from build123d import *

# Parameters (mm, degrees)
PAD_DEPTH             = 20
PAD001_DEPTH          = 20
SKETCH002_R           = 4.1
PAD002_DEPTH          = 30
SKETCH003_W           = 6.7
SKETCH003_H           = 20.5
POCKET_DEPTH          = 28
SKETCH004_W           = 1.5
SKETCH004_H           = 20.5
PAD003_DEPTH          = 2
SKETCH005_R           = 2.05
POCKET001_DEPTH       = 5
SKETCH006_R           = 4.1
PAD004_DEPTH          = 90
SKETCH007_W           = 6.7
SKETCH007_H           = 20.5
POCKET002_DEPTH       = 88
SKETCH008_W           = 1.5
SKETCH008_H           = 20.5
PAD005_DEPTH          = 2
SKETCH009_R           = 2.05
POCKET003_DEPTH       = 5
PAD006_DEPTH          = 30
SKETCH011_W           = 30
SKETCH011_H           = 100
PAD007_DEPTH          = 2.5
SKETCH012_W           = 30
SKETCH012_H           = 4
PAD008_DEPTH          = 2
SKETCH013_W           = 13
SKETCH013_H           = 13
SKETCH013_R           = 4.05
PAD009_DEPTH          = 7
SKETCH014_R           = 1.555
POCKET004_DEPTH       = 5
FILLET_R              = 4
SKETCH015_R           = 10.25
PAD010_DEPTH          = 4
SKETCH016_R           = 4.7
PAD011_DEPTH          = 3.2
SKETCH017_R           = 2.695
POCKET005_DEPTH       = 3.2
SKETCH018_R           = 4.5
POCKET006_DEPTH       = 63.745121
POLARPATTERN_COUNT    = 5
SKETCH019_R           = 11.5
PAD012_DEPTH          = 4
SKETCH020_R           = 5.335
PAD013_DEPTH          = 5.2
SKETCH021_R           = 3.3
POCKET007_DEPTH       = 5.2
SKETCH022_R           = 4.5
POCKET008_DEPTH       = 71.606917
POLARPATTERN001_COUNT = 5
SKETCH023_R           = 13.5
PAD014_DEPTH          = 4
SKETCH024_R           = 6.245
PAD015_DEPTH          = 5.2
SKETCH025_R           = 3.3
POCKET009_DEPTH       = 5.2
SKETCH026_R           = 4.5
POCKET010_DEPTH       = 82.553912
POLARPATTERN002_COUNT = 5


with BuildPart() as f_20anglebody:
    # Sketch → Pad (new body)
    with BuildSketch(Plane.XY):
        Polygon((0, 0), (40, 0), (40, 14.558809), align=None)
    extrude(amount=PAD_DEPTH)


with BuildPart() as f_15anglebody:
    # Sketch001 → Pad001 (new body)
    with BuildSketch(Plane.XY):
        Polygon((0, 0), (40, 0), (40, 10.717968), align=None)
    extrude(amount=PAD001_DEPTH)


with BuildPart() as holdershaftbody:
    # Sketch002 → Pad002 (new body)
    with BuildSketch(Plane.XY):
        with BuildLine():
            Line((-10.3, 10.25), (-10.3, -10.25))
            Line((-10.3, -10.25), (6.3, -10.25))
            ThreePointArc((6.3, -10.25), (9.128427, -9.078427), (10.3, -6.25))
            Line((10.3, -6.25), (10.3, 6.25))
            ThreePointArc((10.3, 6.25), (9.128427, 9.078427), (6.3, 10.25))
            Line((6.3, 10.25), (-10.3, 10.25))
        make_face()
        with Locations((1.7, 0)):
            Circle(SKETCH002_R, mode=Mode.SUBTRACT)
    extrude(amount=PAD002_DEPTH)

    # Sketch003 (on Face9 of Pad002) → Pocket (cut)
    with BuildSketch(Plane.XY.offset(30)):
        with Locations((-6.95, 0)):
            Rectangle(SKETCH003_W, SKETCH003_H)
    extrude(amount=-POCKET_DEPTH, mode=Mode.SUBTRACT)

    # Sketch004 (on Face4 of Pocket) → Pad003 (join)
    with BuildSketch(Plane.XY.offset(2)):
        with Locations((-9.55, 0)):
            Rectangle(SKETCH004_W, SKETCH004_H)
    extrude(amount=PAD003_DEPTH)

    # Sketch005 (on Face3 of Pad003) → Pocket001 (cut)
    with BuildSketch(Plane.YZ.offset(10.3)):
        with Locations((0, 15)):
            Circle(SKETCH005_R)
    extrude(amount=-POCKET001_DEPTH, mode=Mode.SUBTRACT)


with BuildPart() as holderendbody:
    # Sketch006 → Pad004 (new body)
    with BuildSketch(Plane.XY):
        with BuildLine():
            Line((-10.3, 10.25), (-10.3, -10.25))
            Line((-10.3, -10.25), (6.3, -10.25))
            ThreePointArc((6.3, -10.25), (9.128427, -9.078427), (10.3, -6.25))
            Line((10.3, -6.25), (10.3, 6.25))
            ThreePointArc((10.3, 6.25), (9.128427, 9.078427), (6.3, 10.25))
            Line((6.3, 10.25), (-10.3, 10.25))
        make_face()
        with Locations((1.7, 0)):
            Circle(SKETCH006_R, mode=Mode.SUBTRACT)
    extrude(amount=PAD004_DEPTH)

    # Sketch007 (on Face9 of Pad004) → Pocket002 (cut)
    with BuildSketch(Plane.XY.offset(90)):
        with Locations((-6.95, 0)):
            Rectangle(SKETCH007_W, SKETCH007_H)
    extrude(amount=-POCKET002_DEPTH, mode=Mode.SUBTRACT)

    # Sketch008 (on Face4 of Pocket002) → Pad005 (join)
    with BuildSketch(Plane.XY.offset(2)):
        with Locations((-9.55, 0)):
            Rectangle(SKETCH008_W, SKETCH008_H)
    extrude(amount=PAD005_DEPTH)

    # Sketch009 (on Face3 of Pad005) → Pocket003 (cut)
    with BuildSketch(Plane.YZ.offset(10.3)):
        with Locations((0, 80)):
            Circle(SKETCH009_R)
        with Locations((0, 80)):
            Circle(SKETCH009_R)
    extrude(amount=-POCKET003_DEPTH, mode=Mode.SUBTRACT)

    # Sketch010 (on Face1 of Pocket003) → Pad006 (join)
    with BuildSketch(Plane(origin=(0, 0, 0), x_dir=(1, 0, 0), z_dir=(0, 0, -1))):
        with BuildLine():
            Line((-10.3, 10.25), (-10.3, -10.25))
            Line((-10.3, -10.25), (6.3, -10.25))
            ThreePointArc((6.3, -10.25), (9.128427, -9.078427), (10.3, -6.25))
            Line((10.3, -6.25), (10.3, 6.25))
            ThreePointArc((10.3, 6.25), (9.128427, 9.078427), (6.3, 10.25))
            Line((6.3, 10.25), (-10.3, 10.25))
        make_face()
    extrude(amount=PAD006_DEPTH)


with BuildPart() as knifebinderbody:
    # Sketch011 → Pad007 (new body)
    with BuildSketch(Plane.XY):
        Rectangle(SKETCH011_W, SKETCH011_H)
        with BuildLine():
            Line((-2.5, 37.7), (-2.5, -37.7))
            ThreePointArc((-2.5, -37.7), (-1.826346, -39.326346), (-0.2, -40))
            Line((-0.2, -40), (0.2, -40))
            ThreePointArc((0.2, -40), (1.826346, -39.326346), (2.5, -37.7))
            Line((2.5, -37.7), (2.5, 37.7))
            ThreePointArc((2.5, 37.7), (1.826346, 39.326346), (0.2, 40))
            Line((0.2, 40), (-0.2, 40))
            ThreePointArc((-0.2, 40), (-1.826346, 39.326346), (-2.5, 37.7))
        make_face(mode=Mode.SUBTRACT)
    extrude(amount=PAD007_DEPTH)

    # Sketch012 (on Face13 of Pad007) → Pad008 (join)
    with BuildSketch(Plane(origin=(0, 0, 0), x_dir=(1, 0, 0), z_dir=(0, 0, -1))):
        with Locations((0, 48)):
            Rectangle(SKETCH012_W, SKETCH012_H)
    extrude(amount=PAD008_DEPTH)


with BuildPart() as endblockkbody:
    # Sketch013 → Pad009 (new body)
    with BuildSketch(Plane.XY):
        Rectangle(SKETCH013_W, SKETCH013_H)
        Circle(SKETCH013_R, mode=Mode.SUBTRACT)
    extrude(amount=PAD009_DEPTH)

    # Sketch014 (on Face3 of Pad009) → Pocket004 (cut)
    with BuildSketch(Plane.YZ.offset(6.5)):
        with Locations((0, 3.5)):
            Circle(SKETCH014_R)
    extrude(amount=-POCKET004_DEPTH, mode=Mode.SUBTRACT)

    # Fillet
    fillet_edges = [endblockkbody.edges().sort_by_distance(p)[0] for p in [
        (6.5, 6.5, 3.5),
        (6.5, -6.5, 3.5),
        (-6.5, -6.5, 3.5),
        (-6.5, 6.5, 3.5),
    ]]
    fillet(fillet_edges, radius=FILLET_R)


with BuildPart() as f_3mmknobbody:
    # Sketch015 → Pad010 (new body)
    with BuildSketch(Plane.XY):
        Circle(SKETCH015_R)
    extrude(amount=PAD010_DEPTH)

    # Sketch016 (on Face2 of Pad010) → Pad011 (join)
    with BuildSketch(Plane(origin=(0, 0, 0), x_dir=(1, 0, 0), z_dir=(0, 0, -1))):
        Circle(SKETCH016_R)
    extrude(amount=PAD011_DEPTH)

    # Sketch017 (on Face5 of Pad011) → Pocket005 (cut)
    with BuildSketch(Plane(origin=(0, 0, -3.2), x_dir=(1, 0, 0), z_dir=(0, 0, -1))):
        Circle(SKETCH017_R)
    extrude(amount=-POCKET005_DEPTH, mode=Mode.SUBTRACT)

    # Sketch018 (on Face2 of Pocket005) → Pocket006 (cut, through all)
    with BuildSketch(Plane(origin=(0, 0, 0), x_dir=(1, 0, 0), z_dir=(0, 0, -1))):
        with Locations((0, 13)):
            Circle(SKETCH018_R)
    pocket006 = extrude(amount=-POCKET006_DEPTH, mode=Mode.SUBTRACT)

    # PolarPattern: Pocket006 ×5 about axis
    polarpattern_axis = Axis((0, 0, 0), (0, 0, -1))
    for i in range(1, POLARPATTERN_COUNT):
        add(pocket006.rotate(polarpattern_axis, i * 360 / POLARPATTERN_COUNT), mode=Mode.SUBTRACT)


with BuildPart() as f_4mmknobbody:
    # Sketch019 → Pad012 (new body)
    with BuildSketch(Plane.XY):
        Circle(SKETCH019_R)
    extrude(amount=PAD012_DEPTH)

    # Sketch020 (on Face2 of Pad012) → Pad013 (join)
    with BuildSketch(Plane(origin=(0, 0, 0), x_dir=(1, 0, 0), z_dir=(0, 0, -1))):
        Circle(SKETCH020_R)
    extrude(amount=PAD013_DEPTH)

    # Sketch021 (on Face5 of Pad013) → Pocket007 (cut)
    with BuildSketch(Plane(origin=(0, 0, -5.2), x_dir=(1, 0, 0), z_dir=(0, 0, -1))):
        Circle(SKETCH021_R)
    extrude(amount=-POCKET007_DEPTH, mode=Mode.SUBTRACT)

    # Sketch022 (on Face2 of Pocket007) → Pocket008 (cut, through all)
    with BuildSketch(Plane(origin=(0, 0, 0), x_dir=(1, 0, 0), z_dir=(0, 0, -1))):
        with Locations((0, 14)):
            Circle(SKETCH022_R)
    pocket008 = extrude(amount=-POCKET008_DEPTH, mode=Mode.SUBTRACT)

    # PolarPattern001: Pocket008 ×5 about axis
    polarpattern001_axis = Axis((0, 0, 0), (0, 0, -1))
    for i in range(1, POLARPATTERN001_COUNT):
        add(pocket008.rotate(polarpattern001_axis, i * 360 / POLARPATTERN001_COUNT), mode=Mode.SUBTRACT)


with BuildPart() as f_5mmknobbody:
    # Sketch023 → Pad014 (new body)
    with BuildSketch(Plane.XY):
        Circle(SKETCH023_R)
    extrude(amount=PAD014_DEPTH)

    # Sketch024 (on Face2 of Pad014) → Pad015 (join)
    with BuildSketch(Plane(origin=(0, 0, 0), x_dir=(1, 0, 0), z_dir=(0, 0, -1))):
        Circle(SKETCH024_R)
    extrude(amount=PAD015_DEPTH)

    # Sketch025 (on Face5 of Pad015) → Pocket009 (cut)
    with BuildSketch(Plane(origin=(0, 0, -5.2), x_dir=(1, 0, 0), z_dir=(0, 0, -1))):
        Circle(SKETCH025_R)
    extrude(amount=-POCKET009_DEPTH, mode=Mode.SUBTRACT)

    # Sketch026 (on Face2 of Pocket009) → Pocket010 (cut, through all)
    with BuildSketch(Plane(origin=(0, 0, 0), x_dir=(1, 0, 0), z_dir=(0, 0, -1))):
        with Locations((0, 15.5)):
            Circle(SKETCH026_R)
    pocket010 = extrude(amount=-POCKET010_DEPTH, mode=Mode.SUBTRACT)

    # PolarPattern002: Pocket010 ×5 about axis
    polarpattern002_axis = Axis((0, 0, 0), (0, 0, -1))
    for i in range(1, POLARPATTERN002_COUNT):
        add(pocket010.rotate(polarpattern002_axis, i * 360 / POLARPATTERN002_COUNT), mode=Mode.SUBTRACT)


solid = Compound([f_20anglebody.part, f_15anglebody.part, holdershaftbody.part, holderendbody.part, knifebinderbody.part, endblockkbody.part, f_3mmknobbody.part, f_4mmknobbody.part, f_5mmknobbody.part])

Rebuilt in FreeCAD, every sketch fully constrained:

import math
import FreeCAD as App
import Part
import Sketcher

V = App.Vector
Q = App.Units.Quantity


def edges_at(feature, points):
    """Names of the edges that pass closest to the given points."""
    edges = feature.Shape.Edges
    near = lambda p: min(range(len(edges)), key=lambda i: edges[i].distToShape(Part.Vertex(*p))[0])
    return sorted({f"Edge{near(p) + 1}" for p in points})

doc = App.newDocument("Part")
body = doc.addObject("PartDesign::Body", "Body")

sketch1 = body.newObject("Sketcher::SketchObject", "Sketch")
sketch1.AttachmentSupport = (doc.getObject("XY_Plane"), [""])
sketch1.MapMode = "FlatFace"
sketch1.addGeometry(Part.LineSegment(V(0, 0, 0), V(40, 0, 0)), False)
sketch1.addGeometry(Part.LineSegment(V(40, 0, 0), V(40, 14.558809, 0)), False)
sketch1.addGeometry(Part.LineSegment(V(40, 14.558809, 0), V(0, 0, 0)), False)
sketch1.addConstraint(Sketcher.Constraint("Coincident", 0, 2, 1, 1))
sketch1.addConstraint(Sketcher.Constraint("Coincident", 1, 2, 2, 1))
sketch1.addConstraint(Sketcher.Constraint("Coincident", 2, 2, 0, 1))
sketch1.addConstraint(Sketcher.Constraint("Horizontal", 0))
sketch1.addConstraint(Sketcher.Constraint("Vertical", 1))
sketch1.addConstraint(Sketcher.Constraint("Coincident", 2, 2, -1, 1))
sketch1.addConstraint(Sketcher.Constraint("DistanceX", 0, 1, 0, 2, 40.0))
sketch1.addConstraint(Sketcher.Constraint("Angle", 2, Q("-160 deg")))
pad1 = body.newObject("PartDesign::Pad", "Pad")
pad1.Profile = sketch1
pad1.Length = 20
body2 = doc.addObject("PartDesign::Body", "Body001")

sketch2 = body2.newObject("Sketcher::SketchObject", "Sketch001")
sketch2.AttachmentSupport = (doc.getObject("XY_Plane001"), [""])
sketch2.MapMode = "FlatFace"
sketch2.addGeometry(Part.LineSegment(V(0, 0, 0), V(40, 0, 0)), False)
sketch2.addGeometry(Part.LineSegment(V(40, 0, 0), V(40, 10.717968, 0)), False)
sketch2.addGeometry(Part.LineSegment(V(40, 10.717968, 0), V(0, 0, 0)), False)
sketch2.addConstraint(Sketcher.Constraint("Coincident", 0, 2, 1, 1))
sketch2.addConstraint(Sketcher.Constraint("Coincident", 1, 2, 2, 1))
sketch2.addConstraint(Sketcher.Constraint("Coincident", 2, 2, 0, 1))
sketch2.addConstraint(Sketcher.Constraint("Horizontal", 0))
sketch2.addConstraint(Sketcher.Constraint("Vertical", 1))
sketch2.addConstraint(Sketcher.Constraint("Coincident", 2, 2, -1, 1))
sketch2.addConstraint(Sketcher.Constraint("DistanceX", 0, 1, 0, 2, 40.0))
sketch2.addConstraint(Sketcher.Constraint("Angle", 2, Q("-165 deg")))
pad2 = body2.newObject("PartDesign::Pad", "Pad001")
pad2.Profile = sketch2
pad2.Length = 20
body3 = doc.addObject("PartDesign::Body", "Body002")

sketch3 = body3.newObject("Sketcher::SketchObject", "Sketch002")
sketch3.AttachmentSupport = (doc.getObject("XY_Plane002"), [""])
sketch3.MapMode = "FlatFace"
sketch3.addGeometry(Part.LineSegment(V(-10.3, 10.25, 0), V(-10.3, -10.25, 0)), False)
sketch3.addGeometry(Part.LineSegment(V(-10.3, -10.25, 0), V(6.3, -10.25, 0)), False)
sketch3.addGeometry(Part.ArcOfCircle(Part.Circle(V(6.3, -6.25, 0), V(0, 0, 1), 4), math.radians(-89.999994), math.radians(-0.000006)), False)
sketch3.addGeometry(Part.LineSegment(V(10.3, -6.25, 0), V(10.3, 6.25, 0)), False)
sketch3.addGeometry(Part.ArcOfCircle(Part.Circle(V(6.3, 6.25, 0), V(0, 0, 1), 4), math.radians(0.000006), math.radians(89.999994)), False)
sketch3.addGeometry(Part.LineSegment(V(6.3, 10.25, 0), V(-10.3, 10.25, 0)), False)
sketch3.addGeometry(Part.Circle(V(1.7, 0, 0), V(0, 0, 1), 4.1), False)
sketch3.addConstraint(Sketcher.Constraint("Coincident", 0, 2, 1, 1))
sketch3.addConstraint(Sketcher.Constraint("Tangent", 1, 2, 2, 1))
sketch3.addConstraint(Sketcher.Constraint("Tangent", 2, 2, 3, 1))
sketch3.addConstraint(Sketcher.Constraint("Tangent", 3, 2, 4, 1))
sketch3.addConstraint(Sketcher.Constraint("Tangent", 4, 2, 5, 1))
sketch3.addConstraint(Sketcher.Constraint("Coincident", 5, 2, 0, 1))
sketch3.addConstraint(Sketcher.Constraint("Vertical", 0))
sketch3.addConstraint(Sketcher.Constraint("Horizontal", 1))
sketch3.addConstraint(Sketcher.Constraint("Vertical", 3))
sketch3.addConstraint(Sketcher.Constraint("Horizontal", 5))
sketch3.addConstraint(Sketcher.Constraint("Equal", 2, 4))
sketch3.addConstraint(Sketcher.Constraint("PointOnObject", 6, 3, -1))
sketch3.addConstraint(Sketcher.Constraint("Radius", 2, 4.0))
sketch3.addConstraint(Sketcher.Constraint("Diameter", 6, 8.2))
sketch3.addConstraint(Sketcher.Constraint("DistanceX", 1, 1, 1, 2, 16.6))
sketch3.addConstraint(Sketcher.Constraint("DistanceY", 0, 2, 0, 1, 20.5))
sketch3.addConstraint(Sketcher.Constraint("DistanceX", 0, 2, 6, 3, 12.0))
sketch3.addConstraint(Sketcher.Constraint("DistanceX", -1, 1, 2, 3, 6.3))
sketch3.addConstraint(Sketcher.Constraint("DistanceY", 2, 3, -1, 1, 6.25))
pad3 = body3.newObject("PartDesign::Pad", "Pad002")
pad3.Profile = sketch3
pad3.Length = 30

sketch4 = body3.newObject("Sketcher::SketchObject", "Sketch003")
sketch4.AttachmentSupport = (doc.getObject("XY_Plane002"), [""])
sketch4.MapMode = "FlatFace"
sketch4.AttachmentOffset = App.Placement(V(0, 0, 30), App.Rotation())
sketch4.addGeometry(Part.LineSegment(V(-10.3, 10.25, 0), V(-10.3, -10.25, 0)), False)
sketch4.addGeometry(Part.LineSegment(V(-10.3, -10.25, 0), V(-3.6, -10.25, 0)), False)
sketch4.addGeometry(Part.LineSegment(V(-3.6, -10.25, 0), V(-3.6, 10.25, 0)), False)
sketch4.addGeometry(Part.LineSegment(V(-3.6, 10.25, 0), V(-10.3, 10.25, 0)), False)
sketch4.addConstraint(Sketcher.Constraint("Coincident", 0, 2, 1, 1))
sketch4.addConstraint(Sketcher.Constraint("Coincident", 1, 2, 2, 1))
sketch4.addConstraint(Sketcher.Constraint("Coincident", 2, 2, 3, 1))
sketch4.addConstraint(Sketcher.Constraint("Coincident", 3, 2, 0, 1))
sketch4.addConstraint(Sketcher.Constraint("Vertical", 0))
sketch4.addConstraint(Sketcher.Constraint("Horizontal", 1))
sketch4.addConstraint(Sketcher.Constraint("Vertical", 2))
sketch4.addConstraint(Sketcher.Constraint("Horizontal", 3))
sketch4.addConstraint(Sketcher.Constraint("DistanceX", 1, 1, 1, 2, 6.7))
sketch4.addConstraint(Sketcher.Constraint("DistanceY", 0, 2, 0, 1, 20.5))
sketch4.addConstraint(Sketcher.Constraint("DistanceX", 0, 2, -1, 1, 10.3))
sketch4.addConstraint(Sketcher.Constraint("DistanceY", 0, 2, -1, 1, 10.25))
pocket1 = body3.newObject("PartDesign::Pocket", "Pocket")
pocket1.Profile = sketch4
pocket1.Length = 28

sketch5 = body3.newObject("Sketcher::SketchObject", "Sketch004")
sketch5.AttachmentSupport = (doc.getObject("XY_Plane002"), [""])
sketch5.MapMode = "FlatFace"
sketch5.AttachmentOffset = App.Placement(V(0, 0, 2), App.Rotation())
sketch5.addGeometry(Part.LineSegment(V(-10.3, 10.25, 0), V(-10.3, -10.25, 0)), False)
sketch5.addGeometry(Part.LineSegment(V(-10.3, -10.25, 0), V(-8.8, -10.25, 0)), False)
sketch5.addGeometry(Part.LineSegment(V(-8.8, -10.25, 0), V(-8.8, 10.25, 0)), False)
sketch5.addGeometry(Part.LineSegment(V(-8.8, 10.25, 0), V(-10.3, 10.25, 0)), False)
sketch5.addConstraint(Sketcher.Constraint("Coincident", 0, 2, 1, 1))
sketch5.addConstraint(Sketcher.Constraint("Coincident", 1, 2, 2, 1))
sketch5.addConstraint(Sketcher.Constraint("Coincident", 2, 2, 3, 1))
sketch5.addConstraint(Sketcher.Constraint("Coincident", 3, 2, 0, 1))
sketch5.addConstraint(Sketcher.Constraint("Vertical", 0))
sketch5.addConstraint(Sketcher.Constraint("Horizontal", 1))
sketch5.addConstraint(Sketcher.Constraint("Vertical", 2))
sketch5.addConstraint(Sketcher.Constraint("Horizontal", 3))
sketch5.addConstraint(Sketcher.Constraint("DistanceX", 1, 1, 1, 2, 1.5))
sketch5.addConstraint(Sketcher.Constraint("DistanceY", 0, 2, 0, 1, 20.5))
sketch5.addConstraint(Sketcher.Constraint("DistanceX", 0, 2, -1, 1, 10.3))
sketch5.addConstraint(Sketcher.Constraint("DistanceY", 0, 2, -1, 1, 10.25))
pad4 = body3.newObject("PartDesign::Pad", "Pad003")
pad4.Profile = sketch5
pad4.Length = 2

sketch6 = body3.newObject("Sketcher::SketchObject", "Sketch005")
sketch6.AttachmentSupport = (doc.getObject("YZ_Plane002"), [""])
sketch6.MapMode = "FlatFace"
sketch6.AttachmentOffset = App.Placement(V(0, 0, 10.3), App.Rotation())
sketch6.addGeometry(Part.Circle(V(0, 15, 0), V(0, 0, 1), 2.05), False)
sketch6.addConstraint(Sketcher.Constraint("PointOnObject", 0, 3, -2))
sketch6.addConstraint(Sketcher.Constraint("Diameter", 0, 4.1))
sketch6.addConstraint(Sketcher.Constraint("DistanceY", -1, 1, 0, 3, 15.0))
pocket2 = body3.newObject("PartDesign::Pocket", "Pocket001")
pocket2.Profile = sketch6
pocket2.Length = 5
body4 = doc.addObject("PartDesign::Body", "Body003")

sketch7 = body4.newObject("Sketcher::SketchObject", "Sketch006")
sketch7.AttachmentSupport = (doc.getObject("XY_Plane003"), [""])
sketch7.MapMode = "FlatFace"
sketch7.addGeometry(Part.LineSegment(V(-10.3, 10.25, 0), V(-10.3, -10.25, 0)), False)
sketch7.addGeometry(Part.LineSegment(V(-10.3, -10.25, 0), V(6.3, -10.25, 0)), False)
sketch7.addGeometry(Part.ArcOfCircle(Part.Circle(V(6.3, -6.25, 0), V(0, 0, 1), 4), math.radians(-89.999994), math.radians(-0.000006)), False)
sketch7.addGeometry(Part.LineSegment(V(10.3, -6.25, 0), V(10.3, 6.25, 0)), False)
sketch7.addGeometry(Part.ArcOfCircle(Part.Circle(V(6.3, 6.25, 0), V(0, 0, 1), 4), math.radians(0.000006), math.radians(89.999994)), False)
sketch7.addGeometry(Part.LineSegment(V(6.3, 10.25, 0), V(-10.3, 10.25, 0)), False)
sketch7.addGeometry(Part.Circle(V(1.7, 0, 0), V(0, 0, 1), 4.1), False)
sketch7.addConstraint(Sketcher.Constraint("Coincident", 0, 2, 1, 1))
sketch7.addConstraint(Sketcher.Constraint("Tangent", 1, 2, 2, 1))
sketch7.addConstraint(Sketcher.Constraint("Tangent", 2, 2, 3, 1))
sketch7.addConstraint(Sketcher.Constraint("Tangent", 3, 2, 4, 1))
sketch7.addConstraint(Sketcher.Constraint("Tangent", 4, 2, 5, 1))
sketch7.addConstraint(Sketcher.Constraint("Coincident", 5, 2, 0, 1))
sketch7.addConstraint(Sketcher.Constraint("Vertical", 0))
sketch7.addConstraint(Sketcher.Constraint("Horizontal", 1))
sketch7.addConstraint(Sketcher.Constraint("Vertical", 3))
sketch7.addConstraint(Sketcher.Constraint("Horizontal", 5))
sketch7.addConstraint(Sketcher.Constraint("Equal", 2, 4))
sketch7.addConstraint(Sketcher.Constraint("PointOnObject", 6, 3, -1))
sketch7.addConstraint(Sketcher.Constraint("Radius", 2, 4.0))
sketch7.addConstraint(Sketcher.Constraint("Diameter", 6, 8.2))
sketch7.addConstraint(Sketcher.Constraint("DistanceX", 1, 1, 1, 2, 16.6))
sketch7.addConstraint(Sketcher.Constraint("DistanceY", 0, 2, 0, 1, 20.5))
sketch7.addConstraint(Sketcher.Constraint("DistanceX", 0, 2, 6, 3, 12.0))
sketch7.addConstraint(Sketcher.Constraint("DistanceX", -1, 1, 2, 3, 6.3))
sketch7.addConstraint(Sketcher.Constraint("DistanceY", 2, 3, -1, 1, 6.25))
pad5 = body4.newObject("PartDesign::Pad", "Pad004")
pad5.Profile = sketch7
pad5.Length = 90

sketch8 = body4.newObject("Sketcher::SketchObject", "Sketch007")
sketch8.AttachmentSupport = (doc.getObject("XY_Plane003"), [""])
sketch8.MapMode = "FlatFace"
sketch8.AttachmentOffset = App.Placement(V(0, 0, 90), App.Rotation())
sketch8.addGeometry(Part.LineSegment(V(-10.3, 10.25, 0), V(-10.3, -10.25, 0)), False)
sketch8.addGeometry(Part.LineSegment(V(-10.3, -10.25, 0), V(-3.6, -10.25, 0)), False)
sketch8.addGeometry(Part.LineSegment(V(-3.6, -10.25, 0), V(-3.6, 10.25, 0)), False)
sketch8.addGeometry(Part.LineSegment(V(-3.6, 10.25, 0), V(-10.3, 10.25, 0)), False)
sketch8.addConstraint(Sketcher.Constraint("Coincident", 0, 2, 1, 1))
sketch8.addConstraint(Sketcher.Constraint("Coincident", 1, 2, 2, 1))
sketch8.addConstraint(Sketcher.Constraint("Coincident", 2, 2, 3, 1))
sketch8.addConstraint(Sketcher.Constraint("Coincident", 3, 2, 0, 1))
sketch8.addConstraint(Sketcher.Constraint("Vertical", 0))
sketch8.addConstraint(Sketcher.Constraint("Horizontal", 1))
sketch8.addConstraint(Sketcher.Constraint("Vertical", 2))
sketch8.addConstraint(Sketcher.Constraint("Horizontal", 3))
sketch8.addConstraint(Sketcher.Constraint("DistanceX", 1, 1, 1, 2, 6.7))
sketch8.addConstraint(Sketcher.Constraint("DistanceY", 0, 2, 0, 1, 20.5))
sketch8.addConstraint(Sketcher.Constraint("DistanceX", 0, 2, -1, 1, 10.3))
sketch8.addConstraint(Sketcher.Constraint("DistanceY", 0, 2, -1, 1, 10.25))
pocket3 = body4.newObject("PartDesign::Pocket", "Pocket002")
pocket3.Profile = sketch8
pocket3.Length = 88

sketch9 = body4.newObject("Sketcher::SketchObject", "Sketch008")
sketch9.AttachmentSupport = (doc.getObject("XY_Plane003"), [""])
sketch9.MapMode = "FlatFace"
sketch9.AttachmentOffset = App.Placement(V(0, 0, 2), App.Rotation())
sketch9.addGeometry(Part.LineSegment(V(-10.3, 10.25, 0), V(-10.3, -10.25, 0)), False)
sketch9.addGeometry(Part.LineSegment(V(-10.3, -10.25, 0), V(-8.8, -10.25, 0)), False)
sketch9.addGeometry(Part.LineSegment(V(-8.8, -10.25, 0), V(-8.8, 10.25, 0)), False)
sketch9.addGeometry(Part.LineSegment(V(-8.8, 10.25, 0), V(-10.3, 10.25, 0)), False)
sketch9.addConstraint(Sketcher.Constraint("Coincident", 0, 2, 1, 1))
sketch9.addConstraint(Sketcher.Constraint("Coincident", 1, 2, 2, 1))
sketch9.addConstraint(Sketcher.Constraint("Coincident", 2, 2, 3, 1))
sketch9.addConstraint(Sketcher.Constraint("Coincident", 3, 2, 0, 1))
sketch9.addConstraint(Sketcher.Constraint("Vertical", 0))
sketch9.addConstraint(Sketcher.Constraint("Horizontal", 1))
sketch9.addConstraint(Sketcher.Constraint("Vertical", 2))
sketch9.addConstraint(Sketcher.Constraint("Horizontal", 3))
sketch9.addConstraint(Sketcher.Constraint("DistanceX", 1, 1, 1, 2, 1.5))
sketch9.addConstraint(Sketcher.Constraint("DistanceY", 0, 2, 0, 1, 20.5))
sketch9.addConstraint(Sketcher.Constraint("DistanceX", 0, 2, -1, 1, 10.3))
sketch9.addConstraint(Sketcher.Constraint("DistanceY", 0, 2, -1, 1, 10.25))
pad6 = body4.newObject("PartDesign::Pad", "Pad005")
pad6.Profile = sketch9
pad6.Length = 2

sketch10 = body4.newObject("Sketcher::SketchObject", "Sketch009")
sketch10.AttachmentSupport = (doc.getObject("YZ_Plane003"), [""])
sketch10.MapMode = "FlatFace"
sketch10.AttachmentOffset = App.Placement(V(0, 0, 10.3), App.Rotation())
sketch10.addGeometry(Part.Circle(V(0, 80, 0), V(0, 0, 1), 2.05), False)
sketch10.addConstraint(Sketcher.Constraint("PointOnObject", 0, 3, -2))
sketch10.addConstraint(Sketcher.Constraint("Diameter", 0, 4.1))
sketch10.addConstraint(Sketcher.Constraint("DistanceY", -1, 1, 0, 3, 80.0))
pocket4 = body4.newObject("PartDesign::Pocket", "Pocket003")
pocket4.Profile = sketch10
pocket4.Length = 5

sketch11 = body4.newObject("Sketcher::SketchObject", "Sketch010")
sketch11.AttachmentSupport = (doc.getObject("XY_Plane003"), [""])
sketch11.MapMode = "FlatFace"
sketch11.addGeometry(Part.LineSegment(V(-10.3, -10.25, 0), V(-10.3, 10.25, 0)), False)
sketch11.addGeometry(Part.LineSegment(V(-10.3, 10.25, 0), V(6.3, 10.25, 0)), False)
sketch11.addGeometry(Part.ArcOfCircle(Part.Circle(V(6.3, 6.25, 0), V(0, 0, 1), 4), math.radians(0.000006), math.radians(89.999994)), False)
sketch11.addGeometry(Part.LineSegment(V(10.3, 6.25, 0), V(10.3, -6.25, 0)), False)
sketch11.addGeometry(Part.ArcOfCircle(Part.Circle(V(6.3, -6.25, 0), V(0, 0, 1), 4), math.radians(-89.999994), math.radians(-0.000006)), False)
sketch11.addGeometry(Part.LineSegment(V(6.3, -10.25, 0), V(-10.3, -10.25, 0)), False)
sketch11.addConstraint(Sketcher.Constraint("Coincident", 0, 2, 1, 1))
sketch11.addConstraint(Sketcher.Constraint("Tangent", 1, 2, 2, 2))
sketch11.addConstraint(Sketcher.Constraint("Tangent", 2, 1, 3, 1))
sketch11.addConstraint(Sketcher.Constraint("Tangent", 3, 2, 4, 2))
sketch11.addConstraint(Sketcher.Constraint("Tangent", 4, 1, 5, 1))
sketch11.addConstraint(Sketcher.Constraint("Coincident", 5, 2, 0, 1))
sketch11.addConstraint(Sketcher.Constraint("Vertical", 0))
sketch11.addConstraint(Sketcher.Constraint("Horizontal", 1))
sketch11.addConstraint(Sketcher.Constraint("Vertical", 3))
sketch11.addConstraint(Sketcher.Constraint("Horizontal", 5))
sketch11.addConstraint(Sketcher.Constraint("Equal", 2, 4))
sketch11.addConstraint(Sketcher.Constraint("Radius", 2, 4.0))
sketch11.addConstraint(Sketcher.Constraint("DistanceX", 1, 1, 1, 2, 16.6))
sketch11.addConstraint(Sketcher.Constraint("DistanceY", 0, 1, 0, 2, 20.5))
sketch11.addConstraint(Sketcher.Constraint("DistanceX", -1, 1, 2, 3, 6.3))
sketch11.addConstraint(Sketcher.Constraint("DistanceY", -1, 1, 2, 3, 6.25))
pad7 = body4.newObject("PartDesign::Pad", "Pad006")
pad7.Profile = sketch11
pad7.Length = 30
pad7.Reversed = True
body5 = doc.addObject("PartDesign::Body", "Body004")

sketch12 = body5.newObject("Sketcher::SketchObject", "Sketch011")
sketch12.AttachmentSupport = (doc.getObject("XY_Plane004"), [""])
sketch12.MapMode = "FlatFace"
sketch12.addGeometry(Part.LineSegment(V(-15, 50, 0), V(-15, -50, 0)), False)
sketch12.addGeometry(Part.LineSegment(V(-15, -50, 0), V(15, -50, 0)), False)
sketch12.addGeometry(Part.LineSegment(V(15, -50, 0), V(15, 50, 0)), False)
sketch12.addGeometry(Part.LineSegment(V(15, 50, 0), V(-15, 50, 0)), False)
sketch12.addGeometry(Part.LineSegment(V(-2.5, -37.7, 0), V(-2.5, 37.7, 0)), False)
sketch12.addGeometry(Part.ArcOfCircle(Part.Circle(V(-0.200001, 37.700001, 0), V(0, 0, 1), 2.299999), math.radians(89.999966), math.radians(180.000034)), False)
sketch12.addGeometry(Part.LineSegment(V(-0.2, 40, 0), V(0.2, 40, 0)), False)
sketch12.addGeometry(Part.ArcOfCircle(Part.Circle(V(0.200001, 37.700001, 0), V(0, 0, 1), 2.299999), math.radians(-0.000034), math.radians(90.000034)), False)
sketch12.addGeometry(Part.LineSegment(V(2.5, 37.7, 0), V(2.5, -37.7, 0)), False)
sketch12.addGeometry(Part.ArcOfCircle(Part.Circle(V(0.200001, -37.700001, 0), V(0, 0, 1), 2.299999), math.radians(-90.000034), math.radians(0.000034)), False)
sketch12.addGeometry(Part.LineSegment(V(0.2, -40, 0), V(-0.2, -40, 0)), False)
sketch12.addGeometry(Part.ArcOfCircle(Part.Circle(V(-0.200001, -37.700001, 0), V(0, 0, 1), 2.299999), math.radians(179.999966), math.radians(270.000034)), False)
sketch12.addConstraint(Sketcher.Constraint("Coincident", 0, 2, 1, 1))
sketch12.addConstraint(Sketcher.Constraint("Coincident", 1, 2, 2, 1))
sketch12.addConstraint(Sketcher.Constraint("Coincident", 2, 2, 3, 1))
sketch12.addConstraint(Sketcher.Constraint("Coincident", 3, 2, 0, 1))
sketch12.addConstraint(Sketcher.Constraint("Tangent", 4, 2, 5, 2))
sketch12.addConstraint(Sketcher.Constraint("Tangent", 5, 1, 6, 1))
sketch12.addConstraint(Sketcher.Constraint("Tangent", 6, 2, 7, 2))
sketch12.addConstraint(Sketcher.Constraint("Tangent", 7, 1, 8, 1))
sketch12.addConstraint(Sketcher.Constraint("Tangent", 8, 2, 9, 2))
sketch12.addConstraint(Sketcher.Constraint("Tangent", 9, 1, 10, 1))
sketch12.addConstraint(Sketcher.Constraint("Tangent", 10, 2, 11, 2))
sketch12.addConstraint(Sketcher.Constraint("Tangent", 11, 1, 4, 1))
sketch12.addConstraint(Sketcher.Constraint("Vertical", 0))
sketch12.addConstraint(Sketcher.Constraint("Horizontal", 1))
sketch12.addConstraint(Sketcher.Constraint("Vertical", 2))
sketch12.addConstraint(Sketcher.Constraint("Horizontal", 3))
sketch12.addConstraint(Sketcher.Constraint("Vertical", 4))
sketch12.addConstraint(Sketcher.Constraint("Horizontal", 6))
sketch12.addConstraint(Sketcher.Constraint("Vertical", 8))
sketch12.addConstraint(Sketcher.Constraint("Horizontal", 10))
sketch12.addConstraint(Sketcher.Constraint("Equal", 5, 7))
sketch12.addConstraint(Sketcher.Constraint("Equal", 7, 9))
sketch12.addConstraint(Sketcher.Constraint("Equal", 9, 11))
sketch12.addConstraint(Sketcher.Constraint("Symmetric", 5, 3, 9, 3, -1, 1))
sketch12.addConstraint(Sketcher.Constraint("Symmetric", 0, 2, 2, 2, -1, 1))
sketch12.addConstraint(Sketcher.Constraint("Radius", 5, 2.299999))
sketch12.addConstraint(Sketcher.Constraint("DistanceX", 1, 1, 1, 2, 30.0))
sketch12.addConstraint(Sketcher.Constraint("DistanceY", 0, 2, 0, 1, 100.0))
sketch12.addConstraint(Sketcher.Constraint("DistanceX", 6, 1, 6, 2, 0.4))
sketch12.addConstraint(Sketcher.Constraint("DistanceY", 4, 1, 4, 2, 75.4))
pad8 = body5.newObject("PartDesign::Pad", "Pad007")
pad8.Profile = sketch12
pad8.Length = 2.5

sketch13 = body5.newObject("Sketcher::SketchObject", "Sketch012")
sketch13.AttachmentSupport = (doc.getObject("XY_Plane004"), [""])
sketch13.MapMode = "FlatFace"
sketch13.addGeometry(Part.LineSegment(V(-15, -50, 0), V(-15, -46, 0)), False)
sketch13.addGeometry(Part.LineSegment(V(-15, -46, 0), V(15, -46, 0)), False)
sketch13.addGeometry(Part.LineSegment(V(15, -46, 0), V(15, -50, 0)), False)
sketch13.addGeometry(Part.LineSegment(V(15, -50, 0), V(-15, -50, 0)), False)
sketch13.addConstraint(Sketcher.Constraint("Coincident", 0, 2, 1, 1))
sketch13.addConstraint(Sketcher.Constraint("Coincident", 1, 2, 2, 1))
sketch13.addConstraint(Sketcher.Constraint("Coincident", 2, 2, 3, 1))
sketch13.addConstraint(Sketcher.Constraint("Coincident", 3, 2, 0, 1))
sketch13.addConstraint(Sketcher.Constraint("Vertical", 0))
sketch13.addConstraint(Sketcher.Constraint("Horizontal", 1))
sketch13.addConstraint(Sketcher.Constraint("Vertical", 2))
sketch13.addConstraint(Sketcher.Constraint("Horizontal", 3))
sketch13.addConstraint(Sketcher.Constraint("DistanceX", 1, 1, 1, 2, 30.0))
sketch13.addConstraint(Sketcher.Constraint("DistanceY", 0, 1, 0, 2, 4.0))
sketch13.addConstraint(Sketcher.Constraint("DistanceX", 0, 2, -1, 1, 15.0))
sketch13.addConstraint(Sketcher.Constraint("DistanceY", 0, 2, -1, 1, 46.0))
pad9 = body5.newObject("PartDesign::Pad", "Pad008")
pad9.Profile = sketch13
pad9.Length = 2
pad9.Reversed = True
body6 = doc.addObject("PartDesign::Body", "Body005")

sketch14 = body6.newObject("Sketcher::SketchObject", "Sketch013")
sketch14.AttachmentSupport = (doc.getObject("XY_Plane005"), [""])
sketch14.MapMode = "FlatFace"
sketch14.addGeometry(Part.LineSegment(V(-6.5, 6.5, 0), V(-6.5, -6.5, 0)), False)
sketch14.addGeometry(Part.LineSegment(V(-6.5, -6.5, 0), V(6.5, -6.5, 0)), False)
sketch14.addGeometry(Part.LineSegment(V(6.5, -6.5, 0), V(6.5, 6.5, 0)), False)
sketch14.addGeometry(Part.LineSegment(V(6.5, 6.5, 0), V(-6.5, 6.5, 0)), False)
sketch14.addGeometry(Part.Circle(V(0, 0, 0), V(0, 0, 1), 4.05), False)
sketch14.addConstraint(Sketcher.Constraint("Coincident", 0, 2, 1, 1))
sketch14.addConstraint(Sketcher.Constraint("Coincident", 1, 2, 2, 1))
sketch14.addConstraint(Sketcher.Constraint("Coincident", 2, 2, 3, 1))
sketch14.addConstraint(Sketcher.Constraint("Coincident", 3, 2, 0, 1))
sketch14.addConstraint(Sketcher.Constraint("Vertical", 0))
sketch14.addConstraint(Sketcher.Constraint("Horizontal", 1))
sketch14.addConstraint(Sketcher.Constraint("Vertical", 2))
sketch14.addConstraint(Sketcher.Constraint("Horizontal", 3))
sketch14.addConstraint(Sketcher.Constraint("Coincident", 4, 3, -1, 1))
sketch14.addConstraint(Sketcher.Constraint("Symmetric", 0, 2, 2, 2, -1, 1))
sketch14.addConstraint(Sketcher.Constraint("Equal", 3, 0))
sketch14.addConstraint(Sketcher.Constraint("Diameter", 4, 8.1))
sketch14.addConstraint(Sketcher.Constraint("DistanceX", 1, 1, 1, 2, 13.0))
pad10 = body6.newObject("PartDesign::Pad", "Pad009")
pad10.Profile = sketch14
pad10.Length = 7

sketch15 = body6.newObject("Sketcher::SketchObject", "Sketch014")
sketch15.AttachmentSupport = (doc.getObject("YZ_Plane005"), [""])
sketch15.MapMode = "FlatFace"
sketch15.AttachmentOffset = App.Placement(V(0, 0, 6.5), App.Rotation())
sketch15.addGeometry(Part.Circle(V(0, 3.5, 0), V(0, 0, 1), 1.555), False)
sketch15.addConstraint(Sketcher.Constraint("PointOnObject", 0, 3, -2))
sketch15.addConstraint(Sketcher.Constraint("Diameter", 0, 3.11))
sketch15.addConstraint(Sketcher.Constraint("DistanceY", -1, 1, 0, 3, 3.5))
pocket5 = body6.newObject("PartDesign::Pocket", "Pocket004")
pocket5.Profile = sketch15
pocket5.Length = 5
doc.recompute()

fillet = body6.newObject("PartDesign::Fillet", "Fillet")
fillet.Base = (pocket5, edges_at(pocket5, [
    (6.5, 6.5, 3.5),
    (6.5, -6.5, 3.5),
    (-6.5, -6.5, 3.5),
    (-6.5, 6.5, 3.5),
]))
fillet.Radius = 4
body7 = doc.addObject("PartDesign::Body", "Body006")

sketch16 = body7.newObject("Sketcher::SketchObject", "Sketch015")
sketch16.AttachmentSupport = (doc.getObject("XY_Plane006"), [""])
sketch16.MapMode = "FlatFace"
sketch16.addGeometry(Part.Circle(V(0, 0, 0), V(0, 0, 1), 10.25), False)
sketch16.addConstraint(Sketcher.Constraint("Coincident", 0, 3, -1, 1))
sketch16.addConstraint(Sketcher.Constraint("Diameter", 0, 20.5))
pad11 = body7.newObject("PartDesign::Pad", "Pad010")
pad11.Profile = sketch16
pad11.Length = 4

sketch17 = body7.newObject("Sketcher::SketchObject", "Sketch016")
sketch17.AttachmentSupport = (doc.getObject("XY_Plane006"), [""])
sketch17.MapMode = "FlatFace"
sketch17.addGeometry(Part.Circle(V(0, 0, 0), V(0, 0, 1), 4.7), False)
sketch17.addConstraint(Sketcher.Constraint("Coincident", 0, 3, -1, 1))
sketch17.addConstraint(Sketcher.Constraint("Diameter", 0, 9.4))
pad12 = body7.newObject("PartDesign::Pad", "Pad011")
pad12.Profile = sketch17
pad12.Length = 3.2
pad12.Reversed = True

sketch18 = body7.newObject("Sketcher::SketchObject", "Sketch017")
sketch18.AttachmentSupport = (doc.getObject("XY_Plane006"), [""])
sketch18.MapMode = "FlatFace"
sketch18.AttachmentOffset = App.Placement(V(0, 0, -3.2), App.Rotation())
sketch18.addGeometry(Part.Circle(V(0, 0, 0), V(0, 0, 1), 2.695), False)
sketch18.addConstraint(Sketcher.Constraint("Coincident", 0, 3, -1, 1))
sketch18.addConstraint(Sketcher.Constraint("Diameter", 0, 5.39))
pocket6 = body7.newObject("PartDesign::Pocket", "Pocket005")
pocket6.Profile = sketch18
pocket6.Length = 3.2
pocket6.Reversed = True

sketch19 = body7.newObject("Sketcher::SketchObject", "Sketch018")
sketch19.AttachmentSupport = (doc.getObject("XY_Plane006"), [""])
sketch19.MapMode = "FlatFace"
sketch19.addGeometry(Part.Circle(V(0, -13, 0), V(0, 0, 1), 4.5), False)
sketch19.addConstraint(Sketcher.Constraint("PointOnObject", 0, 3, -2))
sketch19.addConstraint(Sketcher.Constraint("Diameter", 0, 9.0))
sketch19.addConstraint(Sketcher.Constraint("DistanceY", 0, 3, -1, 1, 13.0))
pocket7 = body7.newObject("PartDesign::Pocket", "Pocket006")
pocket7.Profile = sketch19
pocket7.Type = "ThroughAll"
pocket7.Reversed = True
doc.recompute()

polarpattern = body7.newObject("PartDesign::PolarPattern", "PolarPattern")
polarpattern.Originals = [pocket7]
polarpattern.Axis = (doc.getObject("Z_Axis006"), [""])
polarpattern.Angle = 360
polarpattern.Occurrences = 5
body7.Tip = polarpattern
body8 = doc.addObject("PartDesign::Body", "Body007")

sketch20 = body8.newObject("Sketcher::SketchObject", "Sketch019")
sketch20.AttachmentSupport = (doc.getObject("XY_Plane007"), [""])
sketch20.MapMode = "FlatFace"
sketch20.addGeometry(Part.Circle(V(0, 0, 0), V(0, 0, 1), 11.5), False)
sketch20.addConstraint(Sketcher.Constraint("Coincident", 0, 3, -1, 1))
sketch20.addConstraint(Sketcher.Constraint("Diameter", 0, 23.0))
pad13 = body8.newObject("PartDesign::Pad", "Pad012")
pad13.Profile = sketch20
pad13.Length = 4

sketch21 = body8.newObject("Sketcher::SketchObject", "Sketch020")
sketch21.AttachmentSupport = (doc.getObject("XY_Plane007"), [""])
sketch21.MapMode = "FlatFace"
sketch21.addGeometry(Part.Circle(V(0, 0, 0), V(0, 0, 1), 5.335), False)
sketch21.addConstraint(Sketcher.Constraint("Coincident", 0, 3, -1, 1))
sketch21.addConstraint(Sketcher.Constraint("Diameter", 0, 10.67))
pad14 = body8.newObject("PartDesign::Pad", "Pad013")
pad14.Profile = sketch21
pad14.Length = 5.2
pad14.Reversed = True

sketch22 = body8.newObject("Sketcher::SketchObject", "Sketch021")
sketch22.AttachmentSupport = (doc.getObject("XY_Plane007"), [""])
sketch22.MapMode = "FlatFace"
sketch22.AttachmentOffset = App.Placement(V(0, 0, -5.2), App.Rotation())
sketch22.addGeometry(Part.Circle(V(0, 0, 0), V(0, 0, 1), 3.3), False)
sketch22.addConstraint(Sketcher.Constraint("Coincident", 0, 3, -1, 1))
sketch22.addConstraint(Sketcher.Constraint("Diameter", 0, 6.6))
pocket8 = body8.newObject("PartDesign::Pocket", "Pocket007")
pocket8.Profile = sketch22
pocket8.Length = 5.2
pocket8.Reversed = True

sketch23 = body8.newObject("Sketcher::SketchObject", "Sketch022")
sketch23.AttachmentSupport = (doc.getObject("XY_Plane007"), [""])
sketch23.MapMode = "FlatFace"
sketch23.addGeometry(Part.Circle(V(0, -14, 0), V(0, 0, 1), 4.5), False)
sketch23.addConstraint(Sketcher.Constraint("PointOnObject", 0, 3, -2))
sketch23.addConstraint(Sketcher.Constraint("Diameter", 0, 9.0))
sketch23.addConstraint(Sketcher.Constraint("DistanceY", 0, 3, -1, 1, 14.0))
pocket9 = body8.newObject("PartDesign::Pocket", "Pocket008")
pocket9.Profile = sketch23
pocket9.Type = "ThroughAll"
pocket9.Reversed = True
doc.recompute()

polarpattern2 = body8.newObject("PartDesign::PolarPattern", "PolarPattern001")
polarpattern2.Originals = [pocket9]
polarpattern2.Axis = (doc.getObject("Z_Axis007"), [""])
polarpattern2.Angle = 360
polarpattern2.Occurrences = 5
body8.Tip = polarpattern2
body9 = doc.addObject("PartDesign::Body", "Body008")

sketch24 = body9.newObject("Sketcher::SketchObject", "Sketch023")
sketch24.AttachmentSupport = (doc.getObject("XY_Plane008"), [""])
sketch24.MapMode = "FlatFace"
sketch24.addGeometry(Part.Circle(V(0, 0, 0), V(0, 0, 1), 13.5), False)
sketch24.addConstraint(Sketcher.Constraint("Coincident", 0, 3, -1, 1))
sketch24.addConstraint(Sketcher.Constraint("Diameter", 0, 27.0))
pad15 = body9.newObject("PartDesign::Pad", "Pad014")
pad15.Profile = sketch24
pad15.Length = 4

sketch25 = body9.newObject("Sketcher::SketchObject", "Sketch024")
sketch25.AttachmentSupport = (doc.getObject("XY_Plane008"), [""])
sketch25.MapMode = "FlatFace"
sketch25.addGeometry(Part.Circle(V(0, 0, 0), V(0, 0, 1), 6.245), False)
sketch25.addConstraint(Sketcher.Constraint("Coincident", 0, 3, -1, 1))
sketch25.addConstraint(Sketcher.Constraint("Diameter", 0, 12.49))
pad16 = body9.newObject("PartDesign::Pad", "Pad015")
pad16.Profile = sketch25
pad16.Length = 5.2
pad16.Reversed = True

sketch26 = body9.newObject("Sketcher::SketchObject", "Sketch025")
sketch26.AttachmentSupport = (doc.getObject("XY_Plane008"), [""])
sketch26.MapMode = "FlatFace"
sketch26.AttachmentOffset = App.Placement(V(0, 0, -5.2), App.Rotation())
sketch26.addGeometry(Part.Circle(V(0, 0, 0), V(0, 0, 1), 3.3), False)
sketch26.addConstraint(Sketcher.Constraint("Coincident", 0, 3, -1, 1))
sketch26.addConstraint(Sketcher.Constraint("Diameter", 0, 6.6))
pocket10 = body9.newObject("PartDesign::Pocket", "Pocket009")
pocket10.Profile = sketch26
pocket10.Length = 5.2
pocket10.Reversed = True

sketch27 = body9.newObject("Sketcher::SketchObject", "Sketch026")
sketch27.AttachmentSupport = (doc.getObject("XY_Plane008"), [""])
sketch27.MapMode = "FlatFace"
sketch27.addGeometry(Part.Circle(V(0, -15.5, 0), V(0, 0, 1), 4.5), False)
sketch27.addConstraint(Sketcher.Constraint("PointOnObject", 0, 3, -2))
sketch27.addConstraint(Sketcher.Constraint("Diameter", 0, 9.0))
sketch27.addConstraint(Sketcher.Constraint("DistanceY", 0, 3, -1, 1, 15.5))
pocket11 = body9.newObject("PartDesign::Pocket", "Pocket010")
pocket11.Profile = sketch27
pocket11.Type = "ThroughAll"
pocket11.Reversed = True
doc.recompute()

polarpattern3 = body9.newObject("PartDesign::PolarPattern", "PolarPattern002")
polarpattern3.Originals = [pocket11]
polarpattern3.Axis = (doc.getObject("Z_Axis008"), [""])
polarpattern3.Angle = 360
polarpattern3.Occurrences = 5
body9.Tip = polarpattern3

doc.recompute()
